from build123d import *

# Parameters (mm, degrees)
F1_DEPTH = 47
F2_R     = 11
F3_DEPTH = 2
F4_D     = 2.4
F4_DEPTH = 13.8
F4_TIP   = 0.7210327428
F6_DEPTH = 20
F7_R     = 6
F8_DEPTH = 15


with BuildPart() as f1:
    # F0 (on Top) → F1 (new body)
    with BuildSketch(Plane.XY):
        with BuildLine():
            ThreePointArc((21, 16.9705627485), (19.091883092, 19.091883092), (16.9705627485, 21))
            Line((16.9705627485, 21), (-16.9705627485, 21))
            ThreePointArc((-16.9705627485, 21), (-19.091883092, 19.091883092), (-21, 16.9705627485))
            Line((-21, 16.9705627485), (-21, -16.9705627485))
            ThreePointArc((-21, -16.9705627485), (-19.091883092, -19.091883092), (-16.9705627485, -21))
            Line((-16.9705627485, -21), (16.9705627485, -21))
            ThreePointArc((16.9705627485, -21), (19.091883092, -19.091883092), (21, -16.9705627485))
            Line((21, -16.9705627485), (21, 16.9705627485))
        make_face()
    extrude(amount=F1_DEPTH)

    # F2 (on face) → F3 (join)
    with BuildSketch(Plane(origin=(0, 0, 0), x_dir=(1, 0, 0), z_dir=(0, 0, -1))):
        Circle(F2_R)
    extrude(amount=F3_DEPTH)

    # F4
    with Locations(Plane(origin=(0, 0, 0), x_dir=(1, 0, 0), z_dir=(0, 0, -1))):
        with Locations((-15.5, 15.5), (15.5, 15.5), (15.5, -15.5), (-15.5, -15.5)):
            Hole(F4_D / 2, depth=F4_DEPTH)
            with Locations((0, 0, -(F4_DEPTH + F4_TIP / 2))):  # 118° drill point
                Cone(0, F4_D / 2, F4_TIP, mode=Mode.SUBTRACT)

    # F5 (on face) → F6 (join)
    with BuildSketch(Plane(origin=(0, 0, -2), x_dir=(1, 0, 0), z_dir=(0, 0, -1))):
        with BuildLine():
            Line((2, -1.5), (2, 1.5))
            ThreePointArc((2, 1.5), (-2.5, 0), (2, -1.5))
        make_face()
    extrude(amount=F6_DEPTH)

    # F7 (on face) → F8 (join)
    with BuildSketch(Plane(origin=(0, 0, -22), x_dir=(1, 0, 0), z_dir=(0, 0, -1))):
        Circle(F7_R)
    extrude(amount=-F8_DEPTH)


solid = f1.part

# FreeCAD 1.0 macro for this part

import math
import FreeCAD as App
import Part
import Sketcher
from FreeCAD import Vector
Q = App.Units.Quantity

doc = App.newDocument("Part")
body = doc.addObject("PartDesign::Body", "Body")

sketch1 = doc.addObject("Sketcher::SketchObject", "Sketch")
body.addObject(sketch1)
sketch1.AttachmentSupport = (doc.XY_Plane, [""])
sketch1.MapMode = "FlatFace"
sketch1.addGeometry([
    Part.ArcOfCircle(Part.Circle(Vector(0, 0, 0), Vector(0, 0, 1), 27), math.radians(38.942441), math.radians(51.057559)),
    Part.LineSegment(Vector(16.970563, 21, 0), Vector(-16.970563, 21, 0)),
    Part.ArcOfCircle(Part.Circle(Vector(0, 0, 0), Vector(0, 0, 1), 27), math.radians(128.942441), math.radians(141.057559)),
    Part.LineSegment(Vector(-21, 16.970563, 0), Vector(-21, -16.970563, 0)),
    Part.ArcOfCircle(Part.Circle(Vector(0, 0, 0), Vector(0, 0, 1), 27), math.radians(-141.057559), math.radians(-128.942441)),
    Part.LineSegment(Vector(-16.970563, -21, 0), Vector(16.970563, -21, 0)),
    Part.ArcOfCircle(Part.Circle(Vector(0, 0, 0), Vector(0, 0, 1), 27), math.radians(-51.057559), math.radians(-38.942441)),
    Part.LineSegment(Vector(21, -16.970563, 0), Vector(21, 16.970563, 0)),
], False)
sketch1.addConstraint([
    Sketcher.Constraint("Coincident", 0, 2, 1, 1),
    Sketcher.Constraint("Coincident", 1, 2, 2, 1),
    Sketcher.Constraint("Coincident", 2, 2, 3, 1),
    Sketcher.Constraint("Coincident", 3, 2, 4, 1),
    Sketcher.Constraint("Coincident", 4, 2, 5, 1),
    Sketcher.Constraint("Coincident", 5, 2, 6, 1),
    Sketcher.Constraint("Coincident", 6, 2, 7, 1),
    Sketcher.Constraint("Coincident", 7, 2, 0, 1),
    Sketcher.Constraint("Horizontal", 1),
    Sketcher.Constraint("Vertical", 3),
    Sketcher.Constraint("Horizontal", 5),
    Sketcher.Constraint("Vertical", 7),
    Sketcher.Constraint("Coincident", 0, 3, -1, 1),
    Sketcher.Constraint("Coincident", 2, 3, -1, 1),
    Sketcher.Constraint("Coincident", 4, 3, -1, 1),
    Sketcher.Constraint("Coincident", 6, 3, -1, 1),
    Sketcher.Constraint("Equal", 0, 2),
    Sketcher.Constraint("Equal", 2, 4),
    Sketcher.Constraint("Equal", 4, 6),
    Sketcher.Constraint("Horizontal", 3, 2, 6, 2),
    Sketcher.Constraint("Vertical", 1, 2, 4, 2),
    Sketcher.Constraint("Equal", 5, 3),
    Sketcher.Constraint("Radius", 0, Q("27 mm")),
    Sketcher.Constraint("DistanceY", -1, 1, 0, 2, Q("21 mm")),
])
pad1 = doc.addObject("PartDesign::Pad", "Pad")
body.addObject(pad1)
pad1.Profile = sketch1
pad1.Length = 47

sketch2 = doc.addObject("Sketcher::SketchObject", "Sketch001")
body.addObject(sketch2)
sketch2.AttachmentSupport = (doc.XY_Plane, [""])
sketch2.MapMode = "FlatFace"
sketch2.addGeometry(Part.Circle(Vector(0, 0, 0), Vector(0, 0, 1), 11), False)
sketch2.addConstraint([
    Sketcher.Constraint("Coincident", 0, 3, -1, 1),
    Sketcher.Constraint("Diameter", 0, Q("22 mm")),
])
pad2 = doc.addObject("PartDesign::Pad", "Pad001")
body.addObject(pad2)
pad2.Profile = sketch2
pad2.Length = 2
pad2.Reversed = True

sketch3 = doc.addObject("Sketcher::SketchObject", "Sketch002")
body.addObject(sketch3)
sketch3.AttachmentSupport = (doc.XY_Plane, [""])
sketch3.MapMode = "FlatFace"
sketch3.addGeometry([
    Part.Circle(Vector(-15.5, -15.5, 0), Vector(0, 0, 1), 1.2),
    Part.Circle(Vector(15.5, -15.5, 0), Vector(0, 0, 1), 1.2),
    Part.Circle(Vector(15.5, 15.5, 0), Vector(0, 0, 1), 1.2),
    Part.Circle(Vector(-15.5, 15.5, 0), Vector(0, 0, 1), 1.2),
], False)
sketch3.addConstraint([
    Sketcher.Constraint("Equal", 0, 1),
    Sketcher.Constraint("Equal", 1, 2),
    Sketcher.Constraint("Equal", 2, 3),
    Sketcher.Constraint("Symmetric", 0, 3, 2, 3, -1, 1),
    Sketcher.Constraint("Symmetric", 1, 3, 3, 3, -1, 1),
    Sketcher.Constraint("Symmetric", 0, 3, 1, 3, -2),
    Sketcher.Constraint("Diameter", 0, Q("2.4 mm")),
    Sketcher.Constraint("DistanceX", 0, 3, 1, 3, Q("31 mm")),
    Sketcher.Constraint("DistanceY", 1, 3, 2, 3, Q("31 mm")),
])
doc.recompute()
hole = doc.addObject("PartDesign::Hole", "Hole")
body.addObject(hole)
hole.Profile = sketch3
hole.ThreadType = "None"
hole.Diameter = 2.4
hole.DepthType = "Dimension"
hole.Depth = 13.8
hole.DrillPoint = "Angled"
hole.DrillPointAngle = 118
hole.Reversed = True

sketch4 = doc.addObject("Sketcher::SketchObject", "Sketch003")
body.addObject(sketch4)
sketch4.AttachmentSupport = (doc.XY_Plane, [""])
sketch4.MapMode = "FlatFace"
sketch4.AttachmentOffset = App.Placement(Vector(0, 0, -2), App.Rotation())
sketch4.addGeometry([
    Part.LineSegment(Vector(2, 1.5, 0), Vector(2, -1.5, 0)),
    Part.ArcOfCircle(Part.Circle(Vector(0, 0, 0), Vector(0, 0, 1), 2.5), math.radians(36.869898), math.radians(323.130102)),
], False)
sketch4.addConstraint([
    Sketcher.Constraint("Coincident", 0, 1, 1, 1),
    Sketcher.Constraint("Coincident", 1, 2, 0, 2),
    Sketcher.Constraint("Vertical", 0),
    Sketcher.Constraint("Coincident", 1, 3, -1, 1),
    Sketcher.Constraint("Radius", 1, Q("2.5 mm")),
    Sketcher.Constraint("DistanceY", 0, 2, 0, 1, Q("3 mm")),
])
pad3 = doc.addObject("PartDesign::Pad", "Pad002")
body.addObject(pad3)
pad3.Profile = sketch4
pad3.Length = 20
pad3.Reversed = True

sketch5 = doc.addObject("Sketcher::SketchObject", "Sketch004")
body.addObject(sketch5)
sketch5.AttachmentSupport = (doc.XY_Plane, [""])
sketch5.MapMode = "FlatFace"
sketch5.AttachmentOffset = App.Placement(Vector(0, 0, -22), App.Rotation())
sketch5.addGeometry(Part.Circle(Vector(0, 0, 0), Vector(0, 0, 1), 6), False)
sketch5.addConstraint([
    Sketcher.Constraint("Coincident", 0, 3, -1, 1),
    Sketcher.Constraint("Diameter", 0, Q("12 mm")),
])
pad4 = doc.addObject("PartDesign::Pad", "Pad003")
body.addObject(pad4)
pad4.Profile = sketch5
pad4.Length = 15

doc.recompute()
